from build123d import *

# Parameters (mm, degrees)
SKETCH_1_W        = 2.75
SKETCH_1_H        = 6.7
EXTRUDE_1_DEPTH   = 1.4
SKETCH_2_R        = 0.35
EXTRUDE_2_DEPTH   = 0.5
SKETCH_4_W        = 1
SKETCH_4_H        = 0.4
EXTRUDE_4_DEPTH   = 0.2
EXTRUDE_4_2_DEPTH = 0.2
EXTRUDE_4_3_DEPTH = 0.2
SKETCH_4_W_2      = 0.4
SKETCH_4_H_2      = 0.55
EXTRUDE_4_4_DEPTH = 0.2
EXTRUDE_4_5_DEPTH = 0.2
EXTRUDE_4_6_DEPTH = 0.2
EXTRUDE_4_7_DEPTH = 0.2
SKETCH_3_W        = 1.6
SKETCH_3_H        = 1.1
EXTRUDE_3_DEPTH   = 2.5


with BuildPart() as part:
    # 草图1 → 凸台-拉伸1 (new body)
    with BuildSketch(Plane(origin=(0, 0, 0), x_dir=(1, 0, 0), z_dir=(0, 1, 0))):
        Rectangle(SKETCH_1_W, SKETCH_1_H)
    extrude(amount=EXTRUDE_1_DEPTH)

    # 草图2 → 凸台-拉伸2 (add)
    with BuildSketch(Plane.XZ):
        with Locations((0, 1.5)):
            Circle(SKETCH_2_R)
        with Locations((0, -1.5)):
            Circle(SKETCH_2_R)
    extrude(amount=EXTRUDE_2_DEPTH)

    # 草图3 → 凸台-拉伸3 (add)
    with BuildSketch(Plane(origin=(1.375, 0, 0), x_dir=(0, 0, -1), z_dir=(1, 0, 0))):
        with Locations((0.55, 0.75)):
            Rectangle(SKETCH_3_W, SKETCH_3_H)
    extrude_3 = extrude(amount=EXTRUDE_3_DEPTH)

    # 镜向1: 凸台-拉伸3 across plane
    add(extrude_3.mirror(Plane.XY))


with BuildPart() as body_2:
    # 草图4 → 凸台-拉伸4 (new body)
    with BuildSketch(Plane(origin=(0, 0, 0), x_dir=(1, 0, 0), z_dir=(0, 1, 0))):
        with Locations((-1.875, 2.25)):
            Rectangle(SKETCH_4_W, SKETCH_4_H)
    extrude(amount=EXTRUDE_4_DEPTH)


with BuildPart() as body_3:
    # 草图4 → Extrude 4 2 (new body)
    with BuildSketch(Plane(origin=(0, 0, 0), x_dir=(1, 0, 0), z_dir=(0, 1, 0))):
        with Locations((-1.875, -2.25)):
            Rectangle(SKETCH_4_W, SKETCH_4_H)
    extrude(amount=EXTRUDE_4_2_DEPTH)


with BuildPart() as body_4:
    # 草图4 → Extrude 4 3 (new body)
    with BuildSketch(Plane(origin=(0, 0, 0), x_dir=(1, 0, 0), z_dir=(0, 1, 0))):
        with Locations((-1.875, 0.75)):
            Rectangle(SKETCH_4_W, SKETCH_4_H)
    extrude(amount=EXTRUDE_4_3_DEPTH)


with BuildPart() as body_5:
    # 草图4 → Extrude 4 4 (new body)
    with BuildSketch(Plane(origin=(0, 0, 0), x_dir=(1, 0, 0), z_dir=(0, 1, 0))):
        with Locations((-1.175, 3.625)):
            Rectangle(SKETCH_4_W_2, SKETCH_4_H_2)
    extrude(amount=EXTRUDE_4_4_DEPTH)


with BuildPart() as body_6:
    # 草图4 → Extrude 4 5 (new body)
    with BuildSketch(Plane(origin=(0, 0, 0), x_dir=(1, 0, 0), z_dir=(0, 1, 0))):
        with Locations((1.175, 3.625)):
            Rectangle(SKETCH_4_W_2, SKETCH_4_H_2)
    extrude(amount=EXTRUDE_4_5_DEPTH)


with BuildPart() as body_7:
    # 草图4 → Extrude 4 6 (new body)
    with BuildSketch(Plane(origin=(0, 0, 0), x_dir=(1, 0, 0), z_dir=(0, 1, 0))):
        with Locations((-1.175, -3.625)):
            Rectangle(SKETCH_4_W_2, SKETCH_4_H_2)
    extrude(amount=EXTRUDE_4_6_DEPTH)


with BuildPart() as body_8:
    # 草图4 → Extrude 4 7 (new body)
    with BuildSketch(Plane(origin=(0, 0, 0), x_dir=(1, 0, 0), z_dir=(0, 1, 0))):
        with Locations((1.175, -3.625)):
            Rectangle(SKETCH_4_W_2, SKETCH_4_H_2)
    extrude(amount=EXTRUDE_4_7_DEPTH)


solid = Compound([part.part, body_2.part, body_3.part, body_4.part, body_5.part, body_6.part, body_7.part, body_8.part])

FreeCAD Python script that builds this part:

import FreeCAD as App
import Part
import Sketcher

V = App.Vector

doc = App.newDocument("Part")
params = doc.addObject("Spreadsheet::Sheet", "Params")
for row, (alias, value) in enumerate([
    ("sketch1_height", "6.7 mm"),
    ("sketch1_width", "2.75 mm"),
    ("pad1_length", "1.4 mm"),
    ("sketch2_diameter", "0.7 mm"),
    ("pad2_length", "0.5 mm"),
    ("sketch3_width", "1.1 mm"),
    ("sketch3_height", "1.6 mm"),
    ("pad3_length", "2.5 mm"),
    ("sketch4_width", "1 mm"),
    ("sketch4_height", "0.4 mm"),
    ("pad4_length", "0.2 mm"),
    ("sketch5_width", "1 mm"),
    ("sketch5_height", "0.4 mm"),
    ("pad5_length", "0.2 mm"),
    ("sketch6_width", "1 mm"),
    ("sketch6_height", "0.4 mm"),
    ("pad6_length", "0.2 mm"),
    ("sketch7_width", "0.4 mm"),
    ("sketch7_height", "0.55 mm"),
    ("pad7_length", "0.2 mm"),
    ("sketch8_width", "0.4 mm"),
    ("sketch8_height", "0.55 mm"),
    ("pad8_length", "0.2 mm"),
    ("sketch9_width", "0.4 mm"),
    ("sketch9_height", "0.55 mm"),
    ("pad9_length", "0.2 mm"),
    ("sketch10_width", "0.4 mm"),
    ("sketch10_height", "0.55 mm"),
    ("pad10_length", "0.2 mm"),
], start=1):
    params.set(f"A{row}", alias)
    params.set(f"B{row}", "=" + value)
    params.setAlias(f"B{row}", alias)

body = doc.addObject("PartDesign::Body", "Body")

sketch1 = body.newObject("Sketcher::SketchObject", "Sketch")
sketch1.AttachmentSupport = (doc.getObject("XZ_Plane"), [""])
sketch1.MapMode = "FlatFace"
sketch1.addGeometry(Part.LineSegment(V(-1.4, -3.4, 0), V(-1.4, 3.4, 0)), False)
sketch1.addGeometry(Part.LineSegment(V(-1.4, 3.4, 0), V(1.4, 3.4, 0)), False)
sketch1.addGeometry(Part.LineSegment(V(1.4, 3.4, 0), V(1.4, -3.4, 0)), False)
sketch1.addGeometry(Part.LineSegment(V(1.4, -3.4, 0), V(-1.4, -3.4, 0)), False)
sketch1.addConstraint(Sketcher.Constraint("Coincident", 0, 2, 1, 1))
sketch1.addConstraint(Sketcher.Constraint("Coincident", 1, 2, 2, 1))
sketch1.addConstraint(Sketcher.Constraint("Coincident", 2, 2, 3, 1))
sketch1.addConstraint(Sketcher.Constraint("Coincident", 3, 2, 0, 1))
sketch1.addConstraint(Sketcher.Constraint("Vertical", 0))
sketch1.addConstraint(Sketcher.Constraint("Horizontal", 1))
sketch1.addConstraint(Sketcher.Constraint("Vertical", 2))
sketch1.addConstraint(Sketcher.Constraint("Horizontal", 3))
sketch1.addConstraint(Sketcher.Constraint("Symmetric", 0, 2, 2, 2, -1, 1))
sketch1.addConstraint(Sketcher.Constraint("DistanceY", 0, 1, 0, 2, 6.7))
sketch1.addConstraint(Sketcher.Constraint("DistanceX", 1, 1, 1, 2, 2.75))
sketch1.setExpression("Constraints[9]", "Params.sketch1_height")
sketch1.setExpression("Constraints[10]", "Params.sketch1_width")
pad1 = body.newObject("PartDesign::Pad", "Pad")
pad1.Profile = sketch1
pad1.setExpression("Length", "Params.pad1_length")
pad1.Reversed = True

sketch2 = body.newObject("Sketcher::SketchObject", "Sketch001")
sketch2.AttachmentSupport = (doc.getObject("XZ_Plane"), [""])
sketch2.MapMode = "FlatFace"
sketch2.addGeometry(Part.Circle(V(0, 1.5, 0), V(0, 0, 1), 0.35), False)
sketch2.addGeometry(Part.Circle(V(0, -1.5, 0), V(0, 0, 1), 0.35), False)
sketch2.addConstraint(Sketcher.Constraint("Equal", 0, 1))
sketch2.addConstraint(Sketcher.Constraint("Symmetric", 0, 3, 1, 3, -1, 1))
sketch2.addConstraint(Sketcher.Constraint("PointOnObject", 0, 3, -2))
sketch2.addConstraint(Sketcher.Constraint("Diameter", 0, 0.7))
sketch2.addConstraint(Sketcher.Constraint("DistanceY", 1, 3, 0, 3, 3.0))
sketch2.setExpression("Constraints[3]", "Params.sketch2_diameter")
pad2 = body.newObject("PartDesign::Pad", "Pad001")
pad2.Profile = sketch2
pad2.setExpression("Length", "Params.pad2_length")

sketch3 = body.newObject("Sketcher::SketchObject", "Sketch002")
sketch3.AttachmentSupport = (doc.getObject("YZ_Plane"), [""])
sketch3.MapMode = "FlatFace"
sketch3.AttachmentOffset = App.Placement(V(0, 0, 1.375), App.Rotation())
sketch3.addGeometry(Part.LineSegment(V(1.3, 0.2, 0), V(0.2, 0.2, 0)), False)
sketch3.addGeometry(Part.LineSegment(V(0.2, 0.2, 0), V(0.2, -1.4, 0)), False)
sketch3.addGeometry(Part.LineSegment(V(0.2, -1.4, 0), V(1.3, -1.4, 0)), False)
sketch3.addGeometry(Part.LineSegment(V(1.3, -1.4, 0), V(1.3, 0.2, 0)), False)
sketch3.addConstraint(Sketcher.Constraint("Coincident", 0, 2, 1, 1))
sketch3.addConstraint(Sketcher.Constraint("Coincident", 1, 2, 2, 1))
sketch3.addConstraint(Sketcher.Constraint("Coincident", 2, 2, 3, 1))
sketch3.addConstraint(Sketcher.Constraint("Coincident", 3, 2, 0, 1))
sketch3.addConstraint(Sketcher.Constraint("Horizontal", 0))
sketch3.addConstraint(Sketcher.Constraint("Vertical", 1))
sketch3.addConstraint(Sketcher.Constraint("Horizontal", 2))
sketch3.addConstraint(Sketcher.Constraint("Vertical", 3))
sketch3.addConstraint(Sketcher.Constraint("DistanceX", 0, 2, 0, 1, 1.1))
sketch3.addConstraint(Sketcher.Constraint("DistanceY", 1, 2, 1, 1, 1.6))
sketch3.addConstraint(Sketcher.Constraint("DistanceX", -1, 1, 0, 2, 0.2))
sketch3.addConstraint(Sketcher.Constraint("DistanceY", -1, 1, 0, 2, 0.25))
sketch3.setExpression("Constraints[8]", "Params.sketch3_width")
sketch3.setExpression("Constraints[9]", "Params.sketch3_height")
pad3 = body.newObject("PartDesign::Pad", "Pad002")
pad3.Profile = sketch3
pad3.setExpression("Length", "Params.pad3_length")
doc.recompute()

mirrored = body.newObject("PartDesign::Mirrored", "Mirrored")
mirrored.Originals = [pad3]
mirrored.MirrorPlane = (doc.getObject("XY_Plane"), [""])
body.Tip = mirrored
body2 = doc.addObject("PartDesign::Body", "Body001")

sketch4 = body2.newObject("Sketcher::SketchObject", "Sketch003")
sketch4.AttachmentSupport = (doc.getObject("XZ_Plane001"), [""])
sketch4.MapMode = "FlatFace"
sketch4.addGeometry(Part.LineSegment(V(-2.38, -2.45, 0), V(-2.38, -2.05, 0)), False)
sketch4.addGeometry(Part.LineSegment(V(-2.38, -2.05, 0), V(-1.38, -2.05, 0)), False)
sketch4.addGeometry(Part.LineSegment(V(-1.38, -2.05, 0), V(-1.38, -2.45, 0)), False)
sketch4.addGeometry(Part.LineSegment(V(-1.38, -2.45, 0), V(-2.38, -2.45, 0)), False)
sketch4.addConstraint(Sketcher.Constraint("Coincident", 0, 2, 1, 1))
sketch4.addConstraint(Sketcher.Constraint("Coincident", 1, 2, 2, 1))
sketch4.addConstraint(Sketcher.Constraint("Coincident", 2, 2, 3, 1))
sketch4.addConstraint(Sketcher.Constraint("Coincident", 3, 2, 0, 1))
sketch4.addConstraint(Sketcher.Constraint("Vertical", 0))
sketch4.addConstraint(Sketcher.Constraint("Horizontal", 1))
sketch4.addConstraint(Sketcher.Constraint("Vertical", 2))
sketch4.addConstraint(Sketcher.Constraint("Horizontal", 3))
sketch4.addConstraint(Sketcher.Constraint("DistanceX", 1, 1, 1, 2, 1.0))
sketch4.addConstraint(Sketcher.Constraint("DistanceY", 0, 1, 0, 2, 0.4))
sketch4.addConstraint(Sketcher.Constraint("DistanceY", 0, 2, -1, 1, 2.05))
sketch4.addConstraint(Sketcher.Constraint("DistanceX", 0, 2, -1, 1, 2.375))
sketch4.setExpression("Constraints[8]", "Params.sketch4_width")
sketch4.setExpression("Constraints[9]", "Params.sketch4_height")
pad4 = body2.newObject("PartDesign::Pad", "Pad003")
pad4.Profile = sketch4
pad4.setExpression("Length", "Params.pad4_length")
pad4.Reversed = True
body3 = doc.addObject("PartDesign::Body", "Body002")

sketch5 = body3.newObject("Sketcher::SketchObject", "Sketch004")
sketch5.AttachmentSupport = (doc.getObject("XZ_Plane002"), [""])
sketch5.MapMode = "FlatFace"
sketch5.addGeometry(Part.LineSegment(V(-2.38, 2.05, 0), V(-2.38, 2.45, 0)), False)
sketch5.addGeometry(Part.LineSegment(V(-2.38, 2.45, 0), V(-1.38, 2.45, 0)), False)
sketch5.addGeometry(Part.LineSegment(V(-1.38, 2.45, 0), V(-1.38, 2.05, 0)), False)
sketch5.addGeometry(Part.LineSegment(V(-1.38, 2.05, 0), V(-2.38, 2.05, 0)), False)
sketch5.addConstraint(Sketcher.Constraint("Coincident", 0, 2, 1, 1))
sketch5.addConstraint(Sketcher.Constraint("Coincident", 1, 2, 2, 1))
sketch5.addConstraint(Sketcher.Constraint("Coincident", 2, 2, 3, 1))
sketch5.addConstraint(Sketcher.Constraint("Coincident", 3, 2, 0, 1))
sketch5.addConstraint(Sketcher.Constraint("Vertical", 0))
sketch5.addConstraint(Sketcher.Constraint("Horizontal", 1))
sketch5.addConstraint(Sketcher.Constraint("Vertical", 2))
sketch5.addConstraint(Sketcher.Constraint("Horizontal", 3))
sketch5.addConstraint(Sketcher.Constraint("DistanceX", 1, 1, 1, 2, 1.0))
sketch5.addConstraint(Sketcher.Constraint("DistanceY", 0, 1, 0, 2, 0.4))
sketch5.addConstraint(Sketcher.Constraint("DistanceY", -1, 1, 0, 2, 2.45))
sketch5.addConstraint(Sketcher.Constraint("DistanceX", 0, 2, -1, 1, 2.375))
sketch5.setExpression("Constraints[8]", "Params.sketch5_width")
sketch5.setExpression("Constraints[9]", "Params.sketch5_height")
pad5 = body3.newObject("PartDesign::Pad", "Pad004")
pad5.Profile = sketch5
pad5.setExpression("Length", "Params.pad5_length")
pad5.Reversed = True
body4 = doc.addObject("PartDesign::Body", "Body003")

sketch6 = body4.newObject("Sketcher::SketchObject", "Sketch005")
sketch6.AttachmentSupport = (doc.getObject("XZ_Plane003"), [""])
sketch6.MapMode = "FlatFace"
sketch6.addGeometry(Part.LineSegment(V(-2.38, -0.95, 0), V(-2.38, -0.55, 0)), False)
sketch6.addGeometry(Part.LineSegment(V(-2.38, -0.55, 0), V(-1.38, -0.55, 0)), False)
sketch6.addGeometry(Part.LineSegment(V(-1.38, -0.55, 0), V(-1.38, -0.95, 0)), False)
sketch6.addGeometry(Part.LineSegment(V(-1.38, -0.95, 0), V(-2.38, -0.95, 0)), False)
sketch6.addConstraint(Sketcher.Constraint("Coincident", 0, 2, 1, 1))
sketch6.addConstraint(Sketcher.Constraint("Coincident", 1, 2, 2, 1))
sketch6.addConstraint(Sketcher.Constraint("Coincident", 2, 2, 3, 1))
sketch6.addConstraint(Sketcher.Constraint("Coincident", 3, 2, 0, 1))
sketch6.addConstraint(Sketcher.Constraint("Vertical", 0))
sketch6.addConstraint(Sketcher.Constraint("Horizontal", 1))
sketch6.addConstraint(Sketcher.Constraint("Vertical", 2))
sketch6.addConstraint(Sketcher.Constraint("Horizontal", 3))
sketch6.addConstraint(Sketcher.Constraint("DistanceX", 1, 1, 1, 2, 1.0))
sketch6.addConstraint(Sketcher.Constraint("DistanceY", 0, 1, 0, 2, 0.4))
sketch6.addConstraint(Sketcher.Constraint("DistanceY", 0, 2, -1, 1, 0.55))
sketch6.addConstraint(Sketcher.Constraint("DistanceX", 0, 2, -1, 1, 2.375))
sketch6.setExpression("Constraints[8]", "Params.sketch6_width")
sketch6.setExpression("Constraints[9]", "Params.sketch6_height")
pad6 = body4.newObject("PartDesign::Pad", "Pad005")
pad6.Profile = sketch6
pad6.setExpression("Length", "Params.pad6_length")
pad6.Reversed = True
body5 = doc.addObject("PartDesign::Body", "Body004")

sketch7 = body5.newObject("Sketcher::SketchObject", "Sketch006")
sketch7.AttachmentSupport = (doc.getObject("XZ_Plane004"), [""])
sketch7.MapMode = "FlatFace"
sketch7.addGeometry(Part.LineSegment(V(-1.38, -3.9, 0), V(-1.38, -3.35, 0)), False)
sketch7.addGeometry(Part.LineSegment(V(-1.38, -3.35, 0), V(-0.97, -3.35, 0)), False)
sketch7.addGeometry(Part.LineSegment(V(-0.97, -3.35, 0), V(-0.97, -3.9, 0)), False)
sketch7.addGeometry(Part.LineSegment(V(-0.97, -3.9, 0), V(-1.38, -3.9, 0)), False)
sketch7.addConstraint(Sketcher.Constraint("Coincident", 0, 2, 1, 1))
sketch7.addConstraint(Sketcher.Constraint("Coincident", 1, 2, 2, 1))
sketch7.addConstraint(Sketcher.Constraint("Coincident", 2, 2, 3, 1))
sketch7.addConstraint(Sketcher.Constraint("Coincident", 3, 2, 0, 1))
sketch7.addConstraint(Sketcher.Constraint("Vertical", 0))
sketch7.addConstraint(Sketcher.Constraint("Horizontal", 1))
sketch7.addConstraint(Sketcher.Constraint("Vertical", 2))
sketch7.addConstraint(Sketcher.Constraint("Horizontal", 3))
sketch7.addConstraint(Sketcher.Constraint("DistanceX", 1, 1, 1, 2, 0.4))
sketch7.addConstraint(Sketcher.Constraint("DistanceY", 0, 1, 0, 2, 0.55))
sketch7.addConstraint(Sketcher.Constraint("DistanceY", 2, 2, -1, 1, 3.9))
sketch7.addConstraint(Sketcher.Constraint("DistanceX", 0, 2, -1, 1, 1.375))
sketch7.setExpression("Constraints[8]", "Params.sketch7_width")
sketch7.setExpression("Constraints[9]", "Params.sketch7_height")
pad7 = body5.newObject("PartDesign::Pad", "Pad006")
pad7.Profile = sketch7
pad7.setExpression("Length", "Params.pad7_length")
pad7.Reversed = True
body6 = doc.addObject("PartDesign::Body", "Body005")

sketch8 = body6.newObject("Sketcher::SketchObject", "Sketch007")
sketch8.AttachmentSupport = (doc.getObject("XZ_Plane005"), [""])
sketch8.MapMode = "FlatFace"
sketch8.addGeometry(Part.LineSegment(V(0.97, -3.9, 0), V(0.97, -3.35, 0)), False)
sketch8.addGeometry(Part.LineSegment(V(0.97, -3.35, 0), V(1.38, -3.35, 0)), False)
sketch8.addGeometry(Part.LineSegment(V(1.38, -3.35, 0), V(1.38, -3.9, 0)), False)
sketch8.addGeometry(Part.LineSegment(V(1.38, -3.9, 0), V(0.97, -3.9, 0)), False)
sketch8.addConstraint(Sketcher.Constraint("Coincident", 0, 2, 1, 1))
sketch8.addConstraint(Sketcher.Constraint("Coincident", 1, 2, 2, 1))
sketch8.addConstraint(Sketcher.Constraint("Coincident", 2, 2, 3, 1))
sketch8.addConstraint(Sketcher.Constraint("Coincident", 3, 2, 0, 1))
sketch8.addConstraint(Sketcher.Constraint("Vertical", 0))
sketch8.addConstraint(Sketcher.Constraint("Horizontal", 1))
sketch8.addConstraint(Sketcher.Constraint("Vertical", 2))
sketch8.addConstraint(Sketcher.Constraint("Horizontal", 3))
sketch8.addConstraint(Sketcher.Constraint("DistanceX", 1, 1, 1, 2, 0.4))
sketch8.addConstraint(Sketcher.Constraint("DistanceY", 0, 1, 0, 2, 0.55))
sketch8.addConstraint(Sketcher.Constraint("DistanceY", 2, 2, -1, 1, 3.9))
sketch8.addConstraint(Sketcher.Constraint("DistanceX", -1, 1, 0, 2, 0.975))
sketch8.setExpression("Constraints[8]", "Params.sketch8_width")
sketch8.setExpression("Constraints[9]", "Params.sketch8_height")
pad8 = body6.newObject("PartDesign::Pad", "Pad007")
pad8.Profile = sketch8
pad8.setExpression("Length", "Params.pad8_length")
pad8.Reversed = True
body7 = doc.addObject("PartDesign::Body", "Body006")

sketch9 = body7.newObject("Sketcher::SketchObject", "Sketch008")
sketch9.AttachmentSupport = (doc.getObject("XZ_Plane006"), [""])
sketch9.MapMode = "FlatFace"
sketch9.addGeometry(Part.LineSegment(V(-1.38, 3.35, 0), V(-1.38, 3.9, 0)), False)
sketch9.addGeometry(Part.LineSegment(V(-1.38, 3.9, 0), V(-0.97, 3.9, 0)), False)
sketch9.addGeometry(Part.LineSegment(V(-0.97, 3.9, 0), V(-0.97, 3.35, 0)), False)
sketch9.addGeometry(Part.LineSegment(V(-0.97, 3.35, 0), V(-1.38, 3.35, 0)), False)
sketch9.addConstraint(Sketcher.Constraint("Coincident", 0, 2, 1, 1))
sketch9.addConstraint(Sketcher.Constraint("Coincident", 1, 2, 2, 1))
sketch9.addConstraint(Sketcher.Constraint("Coincident", 2, 2, 3, 1))
sketch9.addConstraint(Sketcher.Constraint("Coincident", 3, 2, 0, 1))
sketch9.addConstraint(Sketcher.Constraint("Vertical", 0))
sketch9.addConstraint(Sketcher.Constraint("Horizontal", 1))
sketch9.addConstraint(Sketcher.Constraint("Vertical", 2))
sketch9.addConstraint(Sketcher.Constraint("Horizontal", 3))
sketch9.addConstraint(Sketcher.Constraint("DistanceX", 1, 1, 1, 2, 0.4))
sketch9.addConstraint(Sketcher.Constraint("DistanceY", 0, 1, 0, 2, 0.55))
sketch9.addConstraint(Sketcher.Constraint("DistanceY", -1, 1, 0, 2, 3.9))
sketch9.addConstraint(Sketcher.Constraint("DistanceX", 0, 2, -1, 1, 1.375))
sketch9.setExpression("Constraints[8]", "Params.sketch9_width")
sketch9.setExpression("Constraints[9]", "Params.sketch9_height")
pad9 = body7.newObject("PartDesign::Pad", "Pad008")
pad9.Profile = sketch9
pad9.setExpression("Length", "Params.pad9_length")
pad9.Reversed = True
body8 = doc.addObject("PartDesign::Body", "Body007")

sketch10 = body8.newObject("Sketcher::SketchObject", "Sketch009")
sketch10.AttachmentSupport = (doc.getObject("XZ_Plane007"), [""])
sketch10.MapMode = "FlatFace"
sketch10.addGeometry(Part.LineSegment(V(0.97, 3.35, 0), V(0.97, 3.9, 0)), False)
sketch10.addGeometry(Part.LineSegment(V(0.97, 3.9, 0), V(1.38, 3.9, 0)), False)
sketch10.addGeometry(Part.LineSegment(V(1.38, 3.9, 0), V(1.38, 3.35, 0)), False)
sketch10.addGeometry(Part.LineSegment(V(1.38, 3.35, 0), V(0.97, 3.35, 0)), False)
sketch10.addConstraint(Sketcher.Constraint("Coincident", 0, 2, 1, 1))
sketch10.addConstraint(Sketcher.Constraint("Coincident", 1, 2, 2, 1))
sketch10.addConstraint(Sketcher.Constraint("Coincident", 2, 2, 3, 1))
sketch10.addConstraint(Sketcher.Constraint("Coincident", 3, 2, 0, 1))
sketch10.addConstraint(Sketcher.Constraint("Vertical", 0))
sketch10.addConstraint(Sketcher.Constraint("Horizontal", 1))
sketch10.addConstraint(Sketcher.Constraint("Vertical", 2))
sketch10.addConstraint(Sketcher.Constraint("Horizontal", 3))
sketch10.addConstraint(Sketcher.Constraint("DistanceX", 1, 1, 1, 2, 0.4))
sketch10.addConstraint(Sketcher.Constraint("DistanceY", 0, 1, 0, 2, 0.55))
sketch10.addConstraint(Sketcher.Constraint("DistanceY", -1, 1, 0, 2, 3.9))
sketch10.addConstraint(Sketcher.Constraint("DistanceX", -1, 1, 0, 2, 0.975))
sketch10.setExpression("Constraints[8]", "Params.sketch10_width")
sketch10.setExpression("Constraints[9]", "Params.sketch10_height")
pad10 = body8.newObject("PartDesign::Pad", "Pad009")
pad10.Profile = sketch10
pad10.setExpression("Length", "Params.pad10_length")
pad10.Reversed = True

doc.recompute()
